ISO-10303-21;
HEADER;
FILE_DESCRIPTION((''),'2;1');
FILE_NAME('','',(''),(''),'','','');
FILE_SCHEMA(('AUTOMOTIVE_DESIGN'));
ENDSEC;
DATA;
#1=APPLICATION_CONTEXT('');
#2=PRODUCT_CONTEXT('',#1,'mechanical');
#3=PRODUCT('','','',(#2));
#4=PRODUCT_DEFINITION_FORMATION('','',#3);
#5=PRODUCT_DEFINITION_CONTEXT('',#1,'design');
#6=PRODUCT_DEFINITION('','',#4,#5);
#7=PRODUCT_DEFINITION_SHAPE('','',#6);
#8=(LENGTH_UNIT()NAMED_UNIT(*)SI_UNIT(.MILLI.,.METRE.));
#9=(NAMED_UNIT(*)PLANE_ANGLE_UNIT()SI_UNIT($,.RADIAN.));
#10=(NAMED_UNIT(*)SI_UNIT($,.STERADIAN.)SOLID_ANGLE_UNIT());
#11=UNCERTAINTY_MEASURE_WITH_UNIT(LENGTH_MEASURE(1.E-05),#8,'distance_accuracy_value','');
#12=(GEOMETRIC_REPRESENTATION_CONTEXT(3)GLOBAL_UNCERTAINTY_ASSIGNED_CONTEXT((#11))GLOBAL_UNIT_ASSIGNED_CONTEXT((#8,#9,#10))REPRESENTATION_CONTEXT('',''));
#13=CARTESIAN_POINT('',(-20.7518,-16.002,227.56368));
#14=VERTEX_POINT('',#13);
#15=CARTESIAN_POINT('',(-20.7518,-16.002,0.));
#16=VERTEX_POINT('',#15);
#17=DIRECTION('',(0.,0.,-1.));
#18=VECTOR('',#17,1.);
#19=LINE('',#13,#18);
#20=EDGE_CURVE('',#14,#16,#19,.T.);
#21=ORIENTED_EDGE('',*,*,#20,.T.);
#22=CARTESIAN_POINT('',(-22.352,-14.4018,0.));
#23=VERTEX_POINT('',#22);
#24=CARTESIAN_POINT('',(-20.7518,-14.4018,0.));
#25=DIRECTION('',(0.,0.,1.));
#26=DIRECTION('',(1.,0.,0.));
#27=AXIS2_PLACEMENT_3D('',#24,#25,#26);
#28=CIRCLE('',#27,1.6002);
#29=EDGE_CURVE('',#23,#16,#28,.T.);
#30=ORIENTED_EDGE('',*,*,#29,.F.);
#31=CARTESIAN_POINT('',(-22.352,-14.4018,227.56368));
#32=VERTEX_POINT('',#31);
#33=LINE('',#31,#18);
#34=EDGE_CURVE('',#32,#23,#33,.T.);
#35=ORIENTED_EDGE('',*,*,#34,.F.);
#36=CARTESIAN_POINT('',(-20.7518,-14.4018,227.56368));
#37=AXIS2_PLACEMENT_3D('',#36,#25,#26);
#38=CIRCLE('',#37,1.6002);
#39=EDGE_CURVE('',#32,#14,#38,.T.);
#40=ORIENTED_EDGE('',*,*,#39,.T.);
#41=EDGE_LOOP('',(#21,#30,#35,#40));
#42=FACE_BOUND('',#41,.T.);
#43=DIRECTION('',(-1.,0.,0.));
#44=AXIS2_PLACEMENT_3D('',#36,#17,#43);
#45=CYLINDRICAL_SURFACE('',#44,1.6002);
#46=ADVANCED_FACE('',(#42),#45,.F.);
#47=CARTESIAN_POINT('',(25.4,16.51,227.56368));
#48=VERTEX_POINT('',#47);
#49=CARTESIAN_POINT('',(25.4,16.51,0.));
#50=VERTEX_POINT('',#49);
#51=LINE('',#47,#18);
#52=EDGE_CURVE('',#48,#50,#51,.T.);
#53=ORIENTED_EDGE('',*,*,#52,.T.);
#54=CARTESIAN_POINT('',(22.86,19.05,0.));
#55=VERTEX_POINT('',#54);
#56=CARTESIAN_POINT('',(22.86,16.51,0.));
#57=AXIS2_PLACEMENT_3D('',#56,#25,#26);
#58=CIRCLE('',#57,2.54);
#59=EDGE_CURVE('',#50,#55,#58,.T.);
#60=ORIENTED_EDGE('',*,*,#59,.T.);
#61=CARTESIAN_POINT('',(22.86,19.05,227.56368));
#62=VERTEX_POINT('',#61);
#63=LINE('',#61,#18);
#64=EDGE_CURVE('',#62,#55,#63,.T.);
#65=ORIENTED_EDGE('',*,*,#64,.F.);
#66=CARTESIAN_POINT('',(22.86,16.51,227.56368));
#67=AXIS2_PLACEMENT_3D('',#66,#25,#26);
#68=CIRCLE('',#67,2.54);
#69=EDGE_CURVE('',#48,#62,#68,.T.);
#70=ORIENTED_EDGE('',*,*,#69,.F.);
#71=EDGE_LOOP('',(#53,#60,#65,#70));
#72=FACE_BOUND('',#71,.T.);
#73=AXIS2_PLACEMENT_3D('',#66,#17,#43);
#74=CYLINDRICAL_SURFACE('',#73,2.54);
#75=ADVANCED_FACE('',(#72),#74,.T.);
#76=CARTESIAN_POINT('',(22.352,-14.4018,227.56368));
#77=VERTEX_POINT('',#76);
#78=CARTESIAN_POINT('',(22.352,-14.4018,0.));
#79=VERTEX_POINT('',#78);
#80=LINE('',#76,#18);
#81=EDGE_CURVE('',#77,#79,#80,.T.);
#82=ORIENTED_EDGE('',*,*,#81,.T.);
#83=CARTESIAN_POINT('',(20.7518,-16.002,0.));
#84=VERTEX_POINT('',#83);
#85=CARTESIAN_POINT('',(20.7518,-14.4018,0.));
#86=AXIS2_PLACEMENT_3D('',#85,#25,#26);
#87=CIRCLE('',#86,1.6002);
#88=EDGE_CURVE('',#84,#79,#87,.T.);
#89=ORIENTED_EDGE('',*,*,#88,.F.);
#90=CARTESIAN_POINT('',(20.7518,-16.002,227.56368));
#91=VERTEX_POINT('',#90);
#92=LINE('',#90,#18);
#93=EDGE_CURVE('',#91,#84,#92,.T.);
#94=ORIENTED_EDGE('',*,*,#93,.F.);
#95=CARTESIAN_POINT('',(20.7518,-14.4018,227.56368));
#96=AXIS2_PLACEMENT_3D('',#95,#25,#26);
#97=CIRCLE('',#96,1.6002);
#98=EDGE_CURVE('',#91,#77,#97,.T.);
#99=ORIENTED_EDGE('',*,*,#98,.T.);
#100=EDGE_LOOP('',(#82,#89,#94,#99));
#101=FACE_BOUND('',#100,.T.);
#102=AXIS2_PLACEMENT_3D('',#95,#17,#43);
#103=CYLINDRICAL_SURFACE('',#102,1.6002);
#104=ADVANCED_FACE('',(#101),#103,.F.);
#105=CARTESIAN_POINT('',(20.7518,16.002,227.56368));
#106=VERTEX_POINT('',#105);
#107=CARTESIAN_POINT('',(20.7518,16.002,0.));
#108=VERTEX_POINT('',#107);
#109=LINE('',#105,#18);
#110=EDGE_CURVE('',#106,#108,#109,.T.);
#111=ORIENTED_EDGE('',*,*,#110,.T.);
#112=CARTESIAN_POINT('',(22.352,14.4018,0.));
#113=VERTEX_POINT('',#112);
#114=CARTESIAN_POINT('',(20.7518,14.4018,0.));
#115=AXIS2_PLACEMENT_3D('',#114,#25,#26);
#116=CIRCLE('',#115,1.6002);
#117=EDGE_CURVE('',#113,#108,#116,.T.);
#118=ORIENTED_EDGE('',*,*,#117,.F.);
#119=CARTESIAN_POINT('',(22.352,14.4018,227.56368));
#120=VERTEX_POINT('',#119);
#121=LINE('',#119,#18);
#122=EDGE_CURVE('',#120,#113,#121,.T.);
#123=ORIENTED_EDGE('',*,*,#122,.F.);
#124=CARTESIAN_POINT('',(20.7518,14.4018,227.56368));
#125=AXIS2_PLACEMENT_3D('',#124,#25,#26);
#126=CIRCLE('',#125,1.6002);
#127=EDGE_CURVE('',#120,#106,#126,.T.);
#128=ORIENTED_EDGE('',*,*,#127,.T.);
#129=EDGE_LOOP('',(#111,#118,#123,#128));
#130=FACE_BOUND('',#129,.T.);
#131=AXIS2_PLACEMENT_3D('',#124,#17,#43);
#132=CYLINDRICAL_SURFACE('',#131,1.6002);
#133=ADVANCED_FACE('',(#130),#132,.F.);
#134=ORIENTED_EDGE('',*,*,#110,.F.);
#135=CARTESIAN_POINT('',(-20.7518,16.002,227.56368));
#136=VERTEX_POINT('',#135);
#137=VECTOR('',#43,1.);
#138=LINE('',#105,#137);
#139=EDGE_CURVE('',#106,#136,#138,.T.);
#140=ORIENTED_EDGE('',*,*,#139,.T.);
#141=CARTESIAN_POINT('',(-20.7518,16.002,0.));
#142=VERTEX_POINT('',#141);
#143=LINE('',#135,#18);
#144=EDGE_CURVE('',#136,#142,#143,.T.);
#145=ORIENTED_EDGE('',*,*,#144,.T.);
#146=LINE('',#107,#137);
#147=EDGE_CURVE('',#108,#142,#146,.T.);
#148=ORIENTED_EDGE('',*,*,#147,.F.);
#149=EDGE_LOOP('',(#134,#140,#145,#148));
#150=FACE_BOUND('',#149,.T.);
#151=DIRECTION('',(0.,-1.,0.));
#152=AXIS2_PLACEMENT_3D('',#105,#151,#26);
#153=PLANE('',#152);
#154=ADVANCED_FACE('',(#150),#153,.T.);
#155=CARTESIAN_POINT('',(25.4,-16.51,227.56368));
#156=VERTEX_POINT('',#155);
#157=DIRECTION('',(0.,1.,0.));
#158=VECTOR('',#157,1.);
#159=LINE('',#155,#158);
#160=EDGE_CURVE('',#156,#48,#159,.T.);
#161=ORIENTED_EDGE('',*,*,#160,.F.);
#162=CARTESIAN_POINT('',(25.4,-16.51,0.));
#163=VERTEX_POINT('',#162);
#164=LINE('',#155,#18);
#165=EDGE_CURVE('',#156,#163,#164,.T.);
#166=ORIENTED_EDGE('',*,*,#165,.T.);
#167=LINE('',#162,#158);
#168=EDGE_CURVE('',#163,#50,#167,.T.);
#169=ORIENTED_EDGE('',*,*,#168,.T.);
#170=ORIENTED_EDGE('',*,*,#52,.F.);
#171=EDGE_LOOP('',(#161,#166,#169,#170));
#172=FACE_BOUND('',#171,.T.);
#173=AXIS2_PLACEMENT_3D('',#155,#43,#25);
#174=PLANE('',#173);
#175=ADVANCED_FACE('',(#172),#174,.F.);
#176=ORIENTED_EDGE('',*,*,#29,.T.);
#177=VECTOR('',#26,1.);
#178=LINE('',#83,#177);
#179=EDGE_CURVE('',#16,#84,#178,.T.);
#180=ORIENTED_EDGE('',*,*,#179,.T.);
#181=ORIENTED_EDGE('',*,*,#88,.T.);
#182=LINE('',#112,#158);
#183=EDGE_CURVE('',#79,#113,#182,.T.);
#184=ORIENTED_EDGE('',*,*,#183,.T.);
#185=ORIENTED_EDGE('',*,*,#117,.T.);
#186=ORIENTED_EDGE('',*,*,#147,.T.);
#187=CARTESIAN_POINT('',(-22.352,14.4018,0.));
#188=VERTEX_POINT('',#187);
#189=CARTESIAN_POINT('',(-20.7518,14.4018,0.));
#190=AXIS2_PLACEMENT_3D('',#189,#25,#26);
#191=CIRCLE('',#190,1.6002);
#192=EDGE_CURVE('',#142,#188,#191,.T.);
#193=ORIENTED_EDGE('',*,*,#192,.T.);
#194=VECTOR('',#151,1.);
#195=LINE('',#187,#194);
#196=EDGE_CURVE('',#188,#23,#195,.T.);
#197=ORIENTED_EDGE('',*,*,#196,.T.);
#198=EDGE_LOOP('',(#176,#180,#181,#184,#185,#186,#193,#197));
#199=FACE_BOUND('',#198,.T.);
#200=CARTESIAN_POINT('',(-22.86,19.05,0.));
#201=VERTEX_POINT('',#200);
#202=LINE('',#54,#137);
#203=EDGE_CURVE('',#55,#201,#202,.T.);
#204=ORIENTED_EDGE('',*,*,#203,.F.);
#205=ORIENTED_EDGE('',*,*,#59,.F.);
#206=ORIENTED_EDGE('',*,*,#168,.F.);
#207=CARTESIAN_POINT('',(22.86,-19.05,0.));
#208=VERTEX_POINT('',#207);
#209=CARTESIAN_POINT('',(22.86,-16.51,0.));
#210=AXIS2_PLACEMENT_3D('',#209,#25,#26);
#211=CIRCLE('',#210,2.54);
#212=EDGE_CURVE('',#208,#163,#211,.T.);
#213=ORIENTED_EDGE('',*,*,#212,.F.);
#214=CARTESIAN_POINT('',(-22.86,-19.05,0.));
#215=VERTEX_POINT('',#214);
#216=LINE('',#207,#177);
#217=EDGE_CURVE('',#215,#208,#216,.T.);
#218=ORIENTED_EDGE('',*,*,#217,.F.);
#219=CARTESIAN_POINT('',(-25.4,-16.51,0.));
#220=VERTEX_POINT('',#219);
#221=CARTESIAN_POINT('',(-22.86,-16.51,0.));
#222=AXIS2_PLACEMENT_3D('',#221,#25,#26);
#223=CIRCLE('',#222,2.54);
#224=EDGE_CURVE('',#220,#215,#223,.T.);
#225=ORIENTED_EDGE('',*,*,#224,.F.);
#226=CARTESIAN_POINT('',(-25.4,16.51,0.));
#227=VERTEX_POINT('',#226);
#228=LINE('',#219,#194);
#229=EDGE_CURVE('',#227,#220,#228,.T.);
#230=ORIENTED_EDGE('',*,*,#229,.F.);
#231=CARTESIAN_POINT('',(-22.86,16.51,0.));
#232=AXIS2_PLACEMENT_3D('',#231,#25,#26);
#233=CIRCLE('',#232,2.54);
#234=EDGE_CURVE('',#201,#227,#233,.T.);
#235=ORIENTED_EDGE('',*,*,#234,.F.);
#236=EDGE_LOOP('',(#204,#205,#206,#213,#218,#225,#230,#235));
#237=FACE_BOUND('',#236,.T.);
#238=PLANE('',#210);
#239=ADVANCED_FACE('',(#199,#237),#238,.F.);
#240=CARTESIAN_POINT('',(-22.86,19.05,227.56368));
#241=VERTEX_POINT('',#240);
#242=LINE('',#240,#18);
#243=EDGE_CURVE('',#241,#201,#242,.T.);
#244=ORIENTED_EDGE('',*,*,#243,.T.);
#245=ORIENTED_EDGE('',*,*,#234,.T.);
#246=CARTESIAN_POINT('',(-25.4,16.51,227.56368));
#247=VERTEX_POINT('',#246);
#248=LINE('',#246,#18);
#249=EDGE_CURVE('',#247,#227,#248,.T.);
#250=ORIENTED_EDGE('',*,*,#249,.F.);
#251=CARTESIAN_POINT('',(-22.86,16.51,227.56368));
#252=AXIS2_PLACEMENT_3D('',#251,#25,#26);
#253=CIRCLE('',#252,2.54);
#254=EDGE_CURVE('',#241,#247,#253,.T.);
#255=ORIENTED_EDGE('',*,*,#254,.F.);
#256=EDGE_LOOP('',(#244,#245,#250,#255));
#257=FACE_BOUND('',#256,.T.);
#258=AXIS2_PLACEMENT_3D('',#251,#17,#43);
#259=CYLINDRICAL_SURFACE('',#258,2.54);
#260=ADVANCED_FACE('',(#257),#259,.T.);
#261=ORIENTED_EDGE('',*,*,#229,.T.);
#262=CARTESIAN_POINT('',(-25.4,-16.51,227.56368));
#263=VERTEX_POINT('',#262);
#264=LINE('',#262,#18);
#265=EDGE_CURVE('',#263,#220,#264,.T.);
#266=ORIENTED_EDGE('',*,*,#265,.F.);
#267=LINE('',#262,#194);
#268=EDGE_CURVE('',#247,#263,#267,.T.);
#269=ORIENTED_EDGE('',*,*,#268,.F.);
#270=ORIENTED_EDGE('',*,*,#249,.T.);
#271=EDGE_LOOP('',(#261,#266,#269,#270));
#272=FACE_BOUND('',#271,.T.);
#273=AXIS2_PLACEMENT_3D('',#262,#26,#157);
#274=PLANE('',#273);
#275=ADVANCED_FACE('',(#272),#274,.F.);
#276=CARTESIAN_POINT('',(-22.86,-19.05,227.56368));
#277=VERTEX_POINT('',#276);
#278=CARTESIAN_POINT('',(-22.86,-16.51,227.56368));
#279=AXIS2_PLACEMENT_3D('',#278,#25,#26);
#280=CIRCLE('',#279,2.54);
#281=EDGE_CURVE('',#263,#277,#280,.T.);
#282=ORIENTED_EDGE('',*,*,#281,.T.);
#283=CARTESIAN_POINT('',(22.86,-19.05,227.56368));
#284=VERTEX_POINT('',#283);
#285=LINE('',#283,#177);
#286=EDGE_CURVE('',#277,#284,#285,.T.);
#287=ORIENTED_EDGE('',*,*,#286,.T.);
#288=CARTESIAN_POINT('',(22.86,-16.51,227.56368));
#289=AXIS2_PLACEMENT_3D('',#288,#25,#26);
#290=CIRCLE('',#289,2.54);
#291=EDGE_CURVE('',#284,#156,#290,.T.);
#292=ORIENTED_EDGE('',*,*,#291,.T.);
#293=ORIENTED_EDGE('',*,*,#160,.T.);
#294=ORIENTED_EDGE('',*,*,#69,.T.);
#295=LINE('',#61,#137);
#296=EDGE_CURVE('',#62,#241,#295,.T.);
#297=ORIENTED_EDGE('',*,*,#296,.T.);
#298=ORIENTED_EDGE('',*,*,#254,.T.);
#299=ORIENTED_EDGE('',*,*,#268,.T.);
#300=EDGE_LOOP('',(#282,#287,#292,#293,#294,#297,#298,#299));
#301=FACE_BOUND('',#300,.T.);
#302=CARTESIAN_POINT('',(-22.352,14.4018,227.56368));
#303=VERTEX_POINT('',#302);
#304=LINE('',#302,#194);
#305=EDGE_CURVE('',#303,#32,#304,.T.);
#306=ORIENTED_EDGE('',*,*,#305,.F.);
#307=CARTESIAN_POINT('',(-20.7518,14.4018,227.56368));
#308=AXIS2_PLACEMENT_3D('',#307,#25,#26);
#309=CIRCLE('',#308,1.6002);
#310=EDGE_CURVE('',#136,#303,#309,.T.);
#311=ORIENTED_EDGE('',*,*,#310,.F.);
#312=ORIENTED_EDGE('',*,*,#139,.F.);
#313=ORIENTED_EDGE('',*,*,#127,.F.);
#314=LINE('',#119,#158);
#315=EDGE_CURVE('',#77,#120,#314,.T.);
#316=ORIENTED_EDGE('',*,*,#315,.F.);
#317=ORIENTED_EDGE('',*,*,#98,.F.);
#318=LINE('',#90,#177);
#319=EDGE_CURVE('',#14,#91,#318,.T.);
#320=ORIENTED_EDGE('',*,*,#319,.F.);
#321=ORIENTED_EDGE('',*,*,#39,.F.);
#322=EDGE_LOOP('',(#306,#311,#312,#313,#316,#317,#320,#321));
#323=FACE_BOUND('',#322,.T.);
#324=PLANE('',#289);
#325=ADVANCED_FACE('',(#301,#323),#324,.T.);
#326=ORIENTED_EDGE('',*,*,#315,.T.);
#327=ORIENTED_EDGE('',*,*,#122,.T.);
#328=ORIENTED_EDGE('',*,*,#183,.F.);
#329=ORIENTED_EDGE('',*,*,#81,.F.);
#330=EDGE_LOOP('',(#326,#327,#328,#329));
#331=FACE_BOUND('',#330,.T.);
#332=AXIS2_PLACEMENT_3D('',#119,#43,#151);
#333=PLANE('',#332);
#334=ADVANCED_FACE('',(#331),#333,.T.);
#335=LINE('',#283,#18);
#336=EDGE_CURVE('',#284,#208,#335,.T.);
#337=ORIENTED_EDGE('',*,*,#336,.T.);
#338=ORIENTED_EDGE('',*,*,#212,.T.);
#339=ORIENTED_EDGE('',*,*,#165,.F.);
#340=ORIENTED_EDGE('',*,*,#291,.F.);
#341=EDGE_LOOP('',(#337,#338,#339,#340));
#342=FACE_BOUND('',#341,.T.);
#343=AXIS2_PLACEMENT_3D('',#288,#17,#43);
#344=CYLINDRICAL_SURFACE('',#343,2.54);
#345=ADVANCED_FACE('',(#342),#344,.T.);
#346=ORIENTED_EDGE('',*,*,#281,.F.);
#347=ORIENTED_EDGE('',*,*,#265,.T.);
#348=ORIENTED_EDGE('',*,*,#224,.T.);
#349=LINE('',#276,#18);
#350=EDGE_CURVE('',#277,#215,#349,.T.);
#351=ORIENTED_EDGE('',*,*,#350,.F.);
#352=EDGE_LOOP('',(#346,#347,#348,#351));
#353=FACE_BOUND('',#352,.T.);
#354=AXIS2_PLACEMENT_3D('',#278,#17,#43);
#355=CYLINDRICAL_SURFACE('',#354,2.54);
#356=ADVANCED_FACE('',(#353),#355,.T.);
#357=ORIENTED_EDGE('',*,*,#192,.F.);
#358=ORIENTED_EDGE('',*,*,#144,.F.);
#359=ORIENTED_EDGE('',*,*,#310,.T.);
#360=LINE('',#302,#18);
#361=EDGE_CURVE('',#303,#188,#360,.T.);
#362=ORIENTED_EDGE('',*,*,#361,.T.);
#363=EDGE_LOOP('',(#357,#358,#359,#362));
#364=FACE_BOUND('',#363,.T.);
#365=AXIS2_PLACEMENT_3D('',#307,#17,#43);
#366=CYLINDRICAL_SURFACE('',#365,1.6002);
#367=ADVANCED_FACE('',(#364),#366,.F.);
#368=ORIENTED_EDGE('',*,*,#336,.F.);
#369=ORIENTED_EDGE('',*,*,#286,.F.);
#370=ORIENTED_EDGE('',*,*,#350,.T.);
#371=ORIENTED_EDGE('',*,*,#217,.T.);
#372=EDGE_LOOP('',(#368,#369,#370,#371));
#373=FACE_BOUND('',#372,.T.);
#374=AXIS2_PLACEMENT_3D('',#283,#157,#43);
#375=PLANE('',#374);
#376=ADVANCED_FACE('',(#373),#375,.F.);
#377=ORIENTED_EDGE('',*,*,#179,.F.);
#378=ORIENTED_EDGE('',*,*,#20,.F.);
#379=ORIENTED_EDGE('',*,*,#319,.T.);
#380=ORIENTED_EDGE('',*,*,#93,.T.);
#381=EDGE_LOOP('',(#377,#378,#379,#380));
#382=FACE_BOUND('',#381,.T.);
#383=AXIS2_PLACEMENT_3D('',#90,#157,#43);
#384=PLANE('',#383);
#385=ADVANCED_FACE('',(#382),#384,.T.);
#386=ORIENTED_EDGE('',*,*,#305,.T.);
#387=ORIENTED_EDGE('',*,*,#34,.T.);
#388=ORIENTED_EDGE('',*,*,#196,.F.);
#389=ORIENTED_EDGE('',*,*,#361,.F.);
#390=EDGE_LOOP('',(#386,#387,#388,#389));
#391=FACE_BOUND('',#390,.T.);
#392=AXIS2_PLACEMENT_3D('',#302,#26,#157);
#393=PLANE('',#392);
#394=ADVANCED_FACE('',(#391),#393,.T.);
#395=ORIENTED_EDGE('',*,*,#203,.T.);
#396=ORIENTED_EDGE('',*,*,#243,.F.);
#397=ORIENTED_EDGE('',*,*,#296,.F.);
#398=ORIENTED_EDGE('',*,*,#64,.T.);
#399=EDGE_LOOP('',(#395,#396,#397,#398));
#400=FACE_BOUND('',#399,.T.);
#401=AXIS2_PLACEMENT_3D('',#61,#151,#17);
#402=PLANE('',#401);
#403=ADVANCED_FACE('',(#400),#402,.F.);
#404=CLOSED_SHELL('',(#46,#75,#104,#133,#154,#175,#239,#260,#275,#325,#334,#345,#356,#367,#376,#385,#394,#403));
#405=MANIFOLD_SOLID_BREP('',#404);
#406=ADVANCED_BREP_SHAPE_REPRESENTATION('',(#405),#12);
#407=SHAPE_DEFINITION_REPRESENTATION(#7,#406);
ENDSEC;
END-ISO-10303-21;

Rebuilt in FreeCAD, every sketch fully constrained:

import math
import FreeCAD as App
import Part
import Sketcher
from FreeCAD import Vector
Q = App.Units.Quantity

doc = App.newDocument("Part")
body = doc.addObject("PartDesign::Body", "Body")

sketch1 = body.newObject("Sketcher::SketchObject", "Sketch")
sketch1.AttachmentSupport = (doc.getObject("XY_Plane"), [""])
sketch1.MapMode = "FlatFace"
sketch1.addGeometry([
    Part.LineSegment(Vector(25.4, -16.5, 0), Vector(25.4, 16.5, 0)),
    Part.ArcOfCircle(Part.Circle(Vector(22.9, 16.5, 0), Vector(0, 0, 1), 2.5), math.radians(0), math.radians(90)),
    Part.LineSegment(Vector(22.9, 19.1, 0), Vector(-22.9, 19.1, 0)),
    Part.ArcOfCircle(Part.Circle(Vector(-22.9, 16.5, 0), Vector(0, 0, 1), 2.5), math.radians(90), math.radians(180)),
    Part.LineSegment(Vector(-25.4, 16.5, 0), Vector(-25.4, -16.5, 0)),
    Part.ArcOfCircle(Part.Circle(Vector(-22.9, -16.5, 0), Vector(0, 0, 1), 2.5), math.radians(-180), math.radians(-90)),
    Part.LineSegment(Vector(-22.9, -19.1, 0), Vector(22.9, -19.1, 0)),
    Part.ArcOfCircle(Part.Circle(Vector(22.9, -16.5, 0), Vector(0, 0, 1), 2.5), math.radians(-90), math.radians(0)),
    Part.ArcOfCircle(Part.Circle(Vector(20.8, 14.4, 0), Vector(0, 0, 1), 1.6), math.radians(0), math.radians(90)),
    Part.LineSegment(Vector(22.4, 14.4, 0), Vector(22.4, -14.4, 0)),
    Part.ArcOfCircle(Part.Circle(Vector(20.8, -14.4, 0), Vector(0, 0, 1), 1.6), math.radians(-90), math.radians(0)),
    Part.LineSegment(Vector(20.8, -16, 0), Vector(-20.8, -16, 0)),
    Part.ArcOfCircle(Part.Circle(Vector(-20.8, -14.4, 0), Vector(0, 0, 1), 1.6), math.radians(-180), math.radians(-90)),
    Part.LineSegment(Vector(-22.4, -14.4, 0), Vector(-22.4, 14.4, 0)),
    Part.ArcOfCircle(Part.Circle(Vector(-20.8, 14.4, 0), Vector(0, 0, 1), 1.6), math.radians(90), math.radians(180)),
    Part.LineSegment(Vector(-20.8, 16, 0), Vector(20.8, 16, 0)),
], False)
sketch1.addConstraint([
    Sketcher.Constraint("Tangent", 0, 2, 1, 1),
    Sketcher.Constraint("Tangent", 1, 2, 2, 1),
    Sketcher.Constraint("Tangent", 2, 2, 3, 1),
    Sketcher.Constraint("Tangent", 3, 2, 4, 1),
    Sketcher.Constraint("Tangent", 4, 2, 5, 1),
    Sketcher.Constraint("Tangent", 5, 2, 6, 1),
    Sketcher.Constraint("Tangent", 6, 2, 7, 1),
    Sketcher.Constraint("Tangent", 7, 2, 0, 1),
    Sketcher.Constraint("Tangent", 8, 1, 9, 1),
    Sketcher.Constraint("Tangent", 9, 2, 10, 2),
    Sketcher.Constraint("Tangent", 10, 1, 11, 1),
    Sketcher.Constraint("Tangent", 11, 2, 12, 2),
    Sketcher.Constraint("Tangent", 12, 1, 13, 1),
    Sketcher.Constraint("Tangent", 13, 2, 14, 2),
    Sketcher.Constraint("Tangent", 14, 1, 15, 1),
    Sketcher.Constraint("Tangent", 15, 2, 8, 2),
    Sketcher.Constraint("Vertical", 0),
    Sketcher.Constraint("Horizontal", 2),
    Sketcher.Constraint("Vertical", 4),
    Sketcher.Constraint("Horizontal", 6),
    Sketcher.Constraint("Vertical", 9),
    Sketcher.Constraint("Horizontal", 11),
    Sketcher.Constraint("Vertical", 13),
    Sketcher.Constraint("Horizontal", 15),
    Sketcher.Constraint("Equal", 1, 3),
    Sketcher.Constraint("Equal", 3, 5),
    Sketcher.Constraint("Equal", 5, 7),
    Sketcher.Constraint("Equal", 8, 10),
    Sketcher.Constraint("Equal", 10, 12),
    Sketcher.Constraint("Equal", 12, 14),
    Sketcher.Constraint("Symmetric", 1, 3, 5, 3, -1, 1),
    Sketcher.Constraint("Symmetric", 8, 3, 12, 3, -1, 1),
    Sketcher.Constraint("Radius", 1, Q("0.1 in")),
    Sketcher.Constraint("DistanceX", 2, 2, 2, 1, Q("1.8 in")),
    Sketcher.Constraint("DistanceY", 0, 1, 0, 2, Q("1.3 in")),
    Sketcher.Constraint("Radius", 8, Q("0.063 in")),
    Sketcher.Constraint("DistanceX", 11, 2, 11, 1, Q("1.634 in")),
    Sketcher.Constraint("DistanceY", 9, 2, 9, 1, Q("1.134 in")),
])
pad1 = body.newObject("PartDesign::Pad", "Pad")
pad1.Profile = sketch1
pad1.Length = Q("8.9592 in")

doc.recompute()
